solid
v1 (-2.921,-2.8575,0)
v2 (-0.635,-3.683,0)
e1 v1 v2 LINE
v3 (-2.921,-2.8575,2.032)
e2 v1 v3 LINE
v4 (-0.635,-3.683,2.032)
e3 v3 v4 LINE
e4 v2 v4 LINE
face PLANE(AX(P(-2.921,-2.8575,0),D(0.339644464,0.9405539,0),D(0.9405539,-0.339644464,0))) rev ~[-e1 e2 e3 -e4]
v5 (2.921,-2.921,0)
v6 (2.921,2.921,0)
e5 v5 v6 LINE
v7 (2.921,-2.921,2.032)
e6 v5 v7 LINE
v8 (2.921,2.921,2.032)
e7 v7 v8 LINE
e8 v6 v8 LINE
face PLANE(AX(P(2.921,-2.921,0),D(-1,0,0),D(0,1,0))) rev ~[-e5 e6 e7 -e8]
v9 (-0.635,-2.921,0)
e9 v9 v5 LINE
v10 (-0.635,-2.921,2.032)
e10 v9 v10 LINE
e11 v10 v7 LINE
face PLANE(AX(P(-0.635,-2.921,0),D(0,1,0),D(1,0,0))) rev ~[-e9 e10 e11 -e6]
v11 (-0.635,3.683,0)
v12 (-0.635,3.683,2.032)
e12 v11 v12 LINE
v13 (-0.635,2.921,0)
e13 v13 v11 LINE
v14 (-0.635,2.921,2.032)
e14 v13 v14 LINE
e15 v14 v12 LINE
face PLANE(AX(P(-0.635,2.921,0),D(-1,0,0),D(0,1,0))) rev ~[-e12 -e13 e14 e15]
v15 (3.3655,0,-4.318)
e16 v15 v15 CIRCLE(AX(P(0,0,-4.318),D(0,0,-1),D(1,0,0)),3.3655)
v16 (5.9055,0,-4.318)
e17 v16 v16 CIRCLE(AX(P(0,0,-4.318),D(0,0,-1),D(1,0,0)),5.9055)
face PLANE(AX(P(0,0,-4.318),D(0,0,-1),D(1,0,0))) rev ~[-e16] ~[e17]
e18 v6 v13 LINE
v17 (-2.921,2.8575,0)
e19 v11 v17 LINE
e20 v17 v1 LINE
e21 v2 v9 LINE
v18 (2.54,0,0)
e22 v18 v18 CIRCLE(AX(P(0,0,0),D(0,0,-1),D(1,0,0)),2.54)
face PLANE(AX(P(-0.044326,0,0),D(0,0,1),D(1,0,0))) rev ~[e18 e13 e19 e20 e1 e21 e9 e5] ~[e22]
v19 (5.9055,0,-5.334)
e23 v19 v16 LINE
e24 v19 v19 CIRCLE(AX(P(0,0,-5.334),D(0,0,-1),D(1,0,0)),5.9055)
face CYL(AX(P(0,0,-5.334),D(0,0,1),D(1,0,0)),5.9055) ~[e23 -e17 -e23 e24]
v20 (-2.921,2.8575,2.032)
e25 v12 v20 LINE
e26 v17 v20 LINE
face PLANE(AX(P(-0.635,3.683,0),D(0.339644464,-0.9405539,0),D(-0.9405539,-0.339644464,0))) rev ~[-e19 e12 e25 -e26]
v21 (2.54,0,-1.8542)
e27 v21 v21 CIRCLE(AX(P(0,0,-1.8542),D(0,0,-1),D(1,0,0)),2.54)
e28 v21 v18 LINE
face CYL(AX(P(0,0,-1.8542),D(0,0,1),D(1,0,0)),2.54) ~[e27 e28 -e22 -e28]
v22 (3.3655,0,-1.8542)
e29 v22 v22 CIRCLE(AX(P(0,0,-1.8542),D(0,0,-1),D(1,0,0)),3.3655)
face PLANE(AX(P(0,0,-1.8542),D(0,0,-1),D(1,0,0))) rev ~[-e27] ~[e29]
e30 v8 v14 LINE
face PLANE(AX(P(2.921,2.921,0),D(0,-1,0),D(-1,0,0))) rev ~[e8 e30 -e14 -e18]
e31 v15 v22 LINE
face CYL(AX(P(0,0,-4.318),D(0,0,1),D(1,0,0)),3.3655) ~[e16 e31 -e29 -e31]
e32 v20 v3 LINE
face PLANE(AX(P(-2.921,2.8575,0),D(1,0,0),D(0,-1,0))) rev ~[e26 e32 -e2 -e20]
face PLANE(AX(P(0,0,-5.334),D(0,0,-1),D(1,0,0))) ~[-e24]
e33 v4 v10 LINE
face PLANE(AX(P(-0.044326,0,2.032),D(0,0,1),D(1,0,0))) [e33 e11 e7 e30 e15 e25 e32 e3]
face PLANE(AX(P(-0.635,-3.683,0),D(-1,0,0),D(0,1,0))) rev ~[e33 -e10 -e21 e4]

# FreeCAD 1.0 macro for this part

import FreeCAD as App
import Part
import Sketcher
from FreeCAD import Vector
Q = App.Units.Quantity


def add_polygon(sketch, points):
    """Adds a closed chain of lines whose ends are joined by coincident constraints."""
    first, n = sketch.GeometryCount, len(points)
    for a, b in zip(points, points[1:] + points[:1]):
        sketch.addGeometry(Part.LineSegment(App.Vector(*a, 0), App.Vector(*b, 0)), False)
    for i in range(n):
        sketch.addConstraint(Sketcher.Constraint("Coincident", first + i, 2, first + (i + 1) % n, 1))

doc = App.newDocument("Part")
body = doc.addObject("PartDesign::Body", "Body")

sketch1 = body.newObject("Sketcher::SketchObject", "Sketch")
sketch1.AttachmentSupport = (doc.getObject("XZ_Plane"), [""])
sketch1.MapMode = "FlatFace"
add_polygon(sketch1, [(2.5, 0), (0, 0), (0, -5.3), (5.9, -5.3), (5.9, -4.3), (3.4, -4.3), (3.4, -1.9), (2.5, -1.9)])
sketch1.addConstraint([
    Sketcher.Constraint("Horizontal", 0),
    Sketcher.Constraint("Vertical", 1),
    Sketcher.Constraint("Horizontal", 2),
    Sketcher.Constraint("Vertical", 3),
    Sketcher.Constraint("Horizontal", 4),
    Sketcher.Constraint("Vertical", 5),
    Sketcher.Constraint("Horizontal", 6),
    Sketcher.Constraint("Vertical", 7),
    Sketcher.Constraint("Coincident", 0, 2, -1, 1),
    Sketcher.Constraint("Equal", 0, 4),
    Sketcher.Constraint("DistanceX", 0, 2, 0, 1, Q("0.1 in")),
    Sketcher.Constraint("DistanceY", 1, 2, 1, 1, Q("0.21 in")),
    Sketcher.Constraint("DistanceY", 3, 1, 3, 2, Q("0.04 in")),
    Sketcher.Constraint("DistanceY", 5, 1, 5, 2, Q("0.097 in")),
    Sketcher.Constraint("DistanceX", 2, 1, 2, 2, Q("0.2325 in")),
])
revolution = body.newObject("PartDesign::Revolution", "Revolution")
revolution.Profile = sketch1
revolution.ReferenceAxis = (sketch1, ["V_Axis"])
revolution.Angle = 360

sketch2 = body.newObject("Sketcher::SketchObject", "Sketch001")
sketch2.AttachmentSupport = (doc.getObject("XY_Plane"), [""])
sketch2.MapMode = "FlatFace"
add_polygon(sketch2, [(2.9, 2.9), (-0.6, 2.9), (-0.6, 3.7), (-2.9, 2.9), (-2.9, -2.9), (-0.6, -3.7), (-0.6, -2.9), (2.9, -2.9)])
sketch2.addConstraint([
    Sketcher.Constraint("Horizontal", 0),
    Sketcher.Constraint("Vertical", 1),
    Sketcher.Constraint("Vertical", 3),
    Sketcher.Constraint("Vertical", 5),
    Sketcher.Constraint("Horizontal", 6),
    Sketcher.Constraint("Vertical", 7),
    Sketcher.Constraint("Symmetric", 1, 2, 4, 2, -1),
    Sketcher.Constraint("Equal", 1, 5),
    Sketcher.Constraint("Equal", 2, 4),
    Sketcher.Constraint("DistanceX", 0, 2, 0, 1, Q("0.14 in")),
    Sketcher.Constraint("DistanceY", 1, 1, 1, 2, Q("0.03 in")),
    Sketcher.Constraint("DistanceY", 7, 1, 7, 2, Q("0.23 in")),
    Sketcher.Constraint("DistanceY", 3, 2, 3, 1, Q("0.225 in")),
    Sketcher.Constraint("DistanceX", 2, 2, 0, 2, Q("0.09 in")),
    Sketcher.Constraint("DistanceX", 0, 2, -1, 1, Q("0.025 in")),
])
pad1 = body.newObject("PartDesign::Pad", "Pad")
pad1.Profile = sketch2
pad1.Length = Q("0.08 in")

doc.recompute()
